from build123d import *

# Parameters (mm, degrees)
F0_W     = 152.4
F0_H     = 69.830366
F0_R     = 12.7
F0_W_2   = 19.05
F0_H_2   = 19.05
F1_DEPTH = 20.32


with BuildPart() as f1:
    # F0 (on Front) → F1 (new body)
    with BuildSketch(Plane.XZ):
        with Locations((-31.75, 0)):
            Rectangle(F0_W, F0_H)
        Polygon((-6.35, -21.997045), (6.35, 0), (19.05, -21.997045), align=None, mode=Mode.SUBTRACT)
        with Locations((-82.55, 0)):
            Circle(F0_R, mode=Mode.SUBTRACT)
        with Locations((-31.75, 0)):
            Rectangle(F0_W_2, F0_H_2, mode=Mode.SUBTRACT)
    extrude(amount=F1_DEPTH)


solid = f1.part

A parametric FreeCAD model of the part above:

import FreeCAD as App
import Part
import Sketcher
Q = App.Units.Quantity

doc = App.newDocument("Part")
body = doc.addObject("PartDesign::Body", "Body")

sketch1 = body.newObject("Sketcher::SketchObject", "Sketch")
sketch1.AttachmentSupport = (doc.getObject("XZ_Plane"), [""])
sketch1.MapMode = "FlatFace"
sketch1.addGeometry([
    Part.LineSegment(App.Vector(-108, 35, 0), App.Vector(-108, -35, 0)),
    Part.LineSegment(App.Vector(-108, -35, 0), App.Vector(44, -35, 0)),
    Part.LineSegment(App.Vector(44, -35, 0), App.Vector(44, 35, 0)),
    Part.LineSegment(App.Vector(44, 35, 0), App.Vector(-108, 35, 0)),
    Part.LineSegment(App.Vector(19, -22, 0), App.Vector(-6, -22, 0)),
    Part.LineSegment(App.Vector(-6, -22, 0), App.Vector(6, 0, 0)),
    Part.LineSegment(App.Vector(6, 0, 0), App.Vector(19, -22, 0)),
    Part.Circle(App.Vector(-83, 0, 0), App.Vector(0, 0, 1), 13),
    Part.LineSegment(App.Vector(-22, -10, 0), App.Vector(-41, -10, 0)),
    Part.LineSegment(App.Vector(-41, -10, 0), App.Vector(-41, 10, 0)),
    Part.LineSegment(App.Vector(-41, 10, 0), App.Vector(-22, 10, 0)),
    Part.LineSegment(App.Vector(-22, 10, 0), App.Vector(-22, -10, 0)),
], False)
sketch1.addConstraint([
    Sketcher.Constraint("Coincident", 0, 2, 1, 1),
    Sketcher.Constraint("Coincident", 1, 2, 2, 1),
    Sketcher.Constraint("Coincident", 2, 2, 3, 1),
    Sketcher.Constraint("Coincident", 3, 2, 0, 1),
    Sketcher.Constraint("Coincident", 4, 2, 5, 1),
    Sketcher.Constraint("Coincident", 5, 2, 6, 1),
    Sketcher.Constraint("Coincident", 6, 2, 4, 1),
    Sketcher.Constraint("Coincident", 8, 2, 9, 1),
    Sketcher.Constraint("Coincident", 9, 2, 10, 1),
    Sketcher.Constraint("Coincident", 10, 2, 11, 1),
    Sketcher.Constraint("Coincident", 11, 2, 8, 1),
    Sketcher.Constraint("Vertical", 0),
    Sketcher.Constraint("Horizontal", 1),
    Sketcher.Constraint("Vertical", 2),
    Sketcher.Constraint("Horizontal", 3),
    Sketcher.Constraint("Horizontal", 4),
    Sketcher.Constraint("Horizontal", 8),
    Sketcher.Constraint("Vertical", 9),
    Sketcher.Constraint("Horizontal", 10),
    Sketcher.Constraint("Vertical", 11),
    Sketcher.Constraint("PointOnObject", 7, 3, -1),
    Sketcher.Constraint("PointOnObject", 5, 2, -1),
    Sketcher.Constraint("Equal", 10, 9),
    Sketcher.Constraint("Equal", 5, 6),
    Sketcher.Constraint("Diameter", 7, Q("1 in")),
    Sketcher.Constraint("DistanceX", 1, 1, 1, 2, Q("6 in")),
    Sketcher.Constraint("DistanceX", 4, 2, 4, 1, Q("1 in")),
    Sketcher.Constraint("Distance", 5, Q("1 in")),
    Sketcher.Constraint("DistanceX", 0, 2, 7, 3, Q("1 in")),
    Sketcher.Constraint("DistanceX", 4, 2, 1, 2, Q("2 in")),
    Sketcher.Constraint("DistanceX", 8, 2, 8, 1, Q("0.75 in")),
    Sketcher.Constraint("DistanceX", 7, 3, -1, 1, Q("3.25 in")),
    Sketcher.Constraint("DistanceX", 8, 2, -1, 1, Q("1.625 in")),
    Sketcher.Constraint("DistanceY", 8, 2, -1, 1, Q("0.375 in")),
    Sketcher.Constraint("DistanceY", 0, 2, 0, 1, 69.830366),
    Sketcher.Constraint("DistanceY", 0, 2, -1, 1, 34.915183),
])
pad1 = body.newObject("PartDesign::Pad", "Pad")
pad1.Profile = sketch1
pad1.Length = Q("0.8 in")

doc.recompute()
